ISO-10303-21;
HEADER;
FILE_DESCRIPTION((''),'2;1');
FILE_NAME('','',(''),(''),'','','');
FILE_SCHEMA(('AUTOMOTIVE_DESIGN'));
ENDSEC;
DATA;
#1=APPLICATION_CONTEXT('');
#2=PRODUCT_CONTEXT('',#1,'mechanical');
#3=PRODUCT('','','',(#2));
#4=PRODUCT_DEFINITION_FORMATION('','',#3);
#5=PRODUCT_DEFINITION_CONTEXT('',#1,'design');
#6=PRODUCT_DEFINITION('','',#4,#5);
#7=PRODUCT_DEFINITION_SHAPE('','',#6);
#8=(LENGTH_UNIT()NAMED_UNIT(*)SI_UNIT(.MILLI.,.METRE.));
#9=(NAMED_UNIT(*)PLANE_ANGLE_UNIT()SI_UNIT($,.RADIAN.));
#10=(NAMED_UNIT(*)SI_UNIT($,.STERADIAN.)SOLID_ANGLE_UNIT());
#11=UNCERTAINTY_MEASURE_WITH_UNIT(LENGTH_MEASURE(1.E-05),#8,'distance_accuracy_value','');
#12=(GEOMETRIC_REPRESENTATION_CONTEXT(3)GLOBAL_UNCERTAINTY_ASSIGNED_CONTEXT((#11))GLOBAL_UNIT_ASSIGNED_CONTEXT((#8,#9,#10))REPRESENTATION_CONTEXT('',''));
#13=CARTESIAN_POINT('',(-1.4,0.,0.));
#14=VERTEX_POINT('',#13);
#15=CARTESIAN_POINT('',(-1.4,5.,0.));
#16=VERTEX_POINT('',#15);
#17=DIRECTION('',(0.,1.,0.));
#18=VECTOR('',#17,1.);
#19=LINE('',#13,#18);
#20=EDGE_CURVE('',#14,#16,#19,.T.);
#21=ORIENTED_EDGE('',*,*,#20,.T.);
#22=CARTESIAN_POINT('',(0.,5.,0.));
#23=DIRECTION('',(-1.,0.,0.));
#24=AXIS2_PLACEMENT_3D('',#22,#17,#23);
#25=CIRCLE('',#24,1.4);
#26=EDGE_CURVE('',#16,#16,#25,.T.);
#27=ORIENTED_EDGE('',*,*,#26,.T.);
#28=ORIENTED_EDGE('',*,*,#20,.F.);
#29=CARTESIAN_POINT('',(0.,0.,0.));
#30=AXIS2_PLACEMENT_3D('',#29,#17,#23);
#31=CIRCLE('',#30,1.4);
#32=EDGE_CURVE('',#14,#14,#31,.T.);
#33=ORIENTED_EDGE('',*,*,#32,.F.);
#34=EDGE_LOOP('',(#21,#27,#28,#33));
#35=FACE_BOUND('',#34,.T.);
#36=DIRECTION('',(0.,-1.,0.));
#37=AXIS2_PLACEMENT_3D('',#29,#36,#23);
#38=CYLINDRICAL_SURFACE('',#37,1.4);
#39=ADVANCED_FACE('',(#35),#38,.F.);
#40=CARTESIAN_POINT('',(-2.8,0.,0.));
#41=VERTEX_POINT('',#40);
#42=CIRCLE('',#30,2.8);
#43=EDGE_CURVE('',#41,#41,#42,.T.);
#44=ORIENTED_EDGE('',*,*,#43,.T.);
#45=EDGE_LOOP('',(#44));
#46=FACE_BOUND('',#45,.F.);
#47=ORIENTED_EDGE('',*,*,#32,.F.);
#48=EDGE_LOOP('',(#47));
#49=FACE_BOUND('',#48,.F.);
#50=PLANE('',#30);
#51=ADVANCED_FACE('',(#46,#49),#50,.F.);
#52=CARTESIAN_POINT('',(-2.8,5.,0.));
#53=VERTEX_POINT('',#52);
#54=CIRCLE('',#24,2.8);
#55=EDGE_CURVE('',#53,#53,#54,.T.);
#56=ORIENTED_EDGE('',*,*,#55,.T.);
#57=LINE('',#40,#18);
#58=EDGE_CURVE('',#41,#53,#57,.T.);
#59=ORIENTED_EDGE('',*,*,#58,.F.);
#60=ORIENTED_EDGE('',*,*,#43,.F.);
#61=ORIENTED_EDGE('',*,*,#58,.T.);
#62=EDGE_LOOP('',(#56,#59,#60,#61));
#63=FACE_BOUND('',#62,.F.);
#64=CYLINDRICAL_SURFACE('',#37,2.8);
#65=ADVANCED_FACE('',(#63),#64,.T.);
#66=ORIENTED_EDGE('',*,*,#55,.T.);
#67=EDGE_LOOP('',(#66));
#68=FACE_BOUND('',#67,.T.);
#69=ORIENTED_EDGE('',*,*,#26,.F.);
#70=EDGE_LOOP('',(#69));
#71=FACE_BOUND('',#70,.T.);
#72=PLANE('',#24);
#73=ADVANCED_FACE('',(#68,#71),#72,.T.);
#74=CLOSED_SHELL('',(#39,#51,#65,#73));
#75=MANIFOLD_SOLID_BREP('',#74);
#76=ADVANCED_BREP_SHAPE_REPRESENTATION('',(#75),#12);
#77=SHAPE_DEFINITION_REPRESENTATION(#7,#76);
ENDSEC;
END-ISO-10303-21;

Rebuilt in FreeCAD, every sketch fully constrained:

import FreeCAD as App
import Part
import Sketcher
from FreeCAD import Vector
Q = App.Units.Quantity

doc = App.newDocument("Part")
body = doc.addObject("PartDesign::Body", "Body")

sketch1 = body.newObject("Sketcher::SketchObject", "Sketch")
sketch1.AttachmentSupport = (doc.getObject("XZ_Plane"), [""])
sketch1.MapMode = "FlatFace"
sketch1.addGeometry([
    Part.Circle(Vector(0, 0, 0), Vector(0, 0, 1), 2.8),
    Part.Circle(Vector(0, 0, 0), Vector(0, 0, 1), 1.4),
], False)
sketch1.addConstraint([
    Sketcher.Constraint("Coincident", 0, 3, -1, 1),
    Sketcher.Constraint("Coincident", 1, 3, -1, 1),
    Sketcher.Constraint("Diameter", 0, Q("5.6 mm")),
    Sketcher.Constraint("Diameter", 1, Q("2.8 mm")),
])
pad1 = body.newObject("PartDesign::Pad", "Pad")
pad1.Profile = sketch1
pad1.Length = 5
pad1.Reversed = True

doc.recompute()
